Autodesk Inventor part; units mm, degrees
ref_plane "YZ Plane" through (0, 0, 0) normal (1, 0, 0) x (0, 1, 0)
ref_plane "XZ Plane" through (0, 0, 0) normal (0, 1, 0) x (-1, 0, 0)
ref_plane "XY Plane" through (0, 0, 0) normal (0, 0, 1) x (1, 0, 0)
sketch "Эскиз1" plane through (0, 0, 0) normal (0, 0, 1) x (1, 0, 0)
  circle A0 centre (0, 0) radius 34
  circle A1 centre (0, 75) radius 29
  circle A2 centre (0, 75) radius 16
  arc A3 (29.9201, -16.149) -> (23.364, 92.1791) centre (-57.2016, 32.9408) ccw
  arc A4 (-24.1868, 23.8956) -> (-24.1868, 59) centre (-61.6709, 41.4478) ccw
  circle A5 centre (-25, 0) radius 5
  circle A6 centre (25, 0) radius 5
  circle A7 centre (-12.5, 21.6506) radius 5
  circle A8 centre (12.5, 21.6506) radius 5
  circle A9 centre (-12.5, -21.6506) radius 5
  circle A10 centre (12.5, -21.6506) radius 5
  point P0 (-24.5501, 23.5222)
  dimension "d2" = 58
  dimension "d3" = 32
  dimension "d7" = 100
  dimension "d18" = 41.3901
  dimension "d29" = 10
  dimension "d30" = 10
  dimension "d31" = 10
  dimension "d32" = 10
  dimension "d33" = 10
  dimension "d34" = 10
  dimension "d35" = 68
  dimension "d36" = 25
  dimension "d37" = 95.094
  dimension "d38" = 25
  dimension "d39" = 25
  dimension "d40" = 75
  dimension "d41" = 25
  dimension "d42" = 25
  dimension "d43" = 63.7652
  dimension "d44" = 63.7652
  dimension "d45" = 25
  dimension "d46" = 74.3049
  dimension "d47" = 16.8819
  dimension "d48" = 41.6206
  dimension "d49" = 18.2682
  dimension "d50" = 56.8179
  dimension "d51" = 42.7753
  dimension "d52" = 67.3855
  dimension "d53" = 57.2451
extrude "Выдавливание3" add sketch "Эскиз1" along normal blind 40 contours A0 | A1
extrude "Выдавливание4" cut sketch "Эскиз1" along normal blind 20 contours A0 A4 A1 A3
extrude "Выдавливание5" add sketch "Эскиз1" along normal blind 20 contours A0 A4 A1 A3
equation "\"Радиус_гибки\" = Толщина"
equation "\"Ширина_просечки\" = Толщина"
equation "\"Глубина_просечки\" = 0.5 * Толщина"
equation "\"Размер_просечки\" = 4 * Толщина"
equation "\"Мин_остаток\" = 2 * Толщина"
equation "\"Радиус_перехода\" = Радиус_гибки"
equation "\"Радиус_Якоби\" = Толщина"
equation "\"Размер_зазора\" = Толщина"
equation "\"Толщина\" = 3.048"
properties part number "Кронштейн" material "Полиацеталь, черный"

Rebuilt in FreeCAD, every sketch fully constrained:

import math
import FreeCAD as App
import Part
import Sketcher

V = App.Vector

doc = App.newDocument("Part")
body = doc.addObject("PartDesign::Body", "Body")
body.AllowCompound = True

sketch1 = body.newObject("Sketcher::SketchObject", "Sketch")
sketch1.AttachmentSupport = (doc.getObject("XY_Plane"), [""])
sketch1.MapMode = "FlatFace"
sketch1.addGeometry(Part.Circle(V(0, 0, 0), V(0, 0, 1), 34), False)
sketch1.addGeometry(Part.Circle(V(-25, 0, 0), V(0, 0, 1), 5), False)
sketch1.addGeometry(Part.Circle(V(-12.5, -21.6506, 0), V(0, 0, 1), 5), False)
sketch1.addGeometry(Part.Circle(V(-12.5, 21.6506, 0), V(0, 0, 1), 5), False)
sketch1.addGeometry(Part.Circle(V(12.5, -21.6506, 0), V(0, 0, 1), 5), False)
sketch1.addGeometry(Part.Circle(V(25, 0, 0), V(0, 0, 1), 5), False)
sketch1.addGeometry(Part.Circle(V(12.5, 21.6506, 0), V(0, 0, 1), 5), False)
sketch1.addGeometry(Part.Circle(V(0, 75, 0), V(0, 0, 1), 29), False)
sketch1.addGeometry(Part.Circle(V(0, 75, 0), V(0, 0, 1), 16), False)
sketch1.addConstraint(Sketcher.Constraint("Coincident", 0, 3, -1, 1))
sketch1.addConstraint(Sketcher.Constraint("Coincident", 8, 3, 7, 3))
sketch1.addConstraint(Sketcher.Constraint("Equal", 1, 2))
sketch1.addConstraint(Sketcher.Constraint("Equal", 2, 3))
sketch1.addConstraint(Sketcher.Constraint("Equal", 3, 4))
sketch1.addConstraint(Sketcher.Constraint("Equal", 4, 5))
sketch1.addConstraint(Sketcher.Constraint("Equal", 5, 6))
sketch1.addConstraint(Sketcher.Constraint("Symmetric", 3, 3, 4, 3, -1, 1))
sketch1.addConstraint(Sketcher.Constraint("Symmetric", 1, 3, 5, 3, -1, 1))
sketch1.addConstraint(Sketcher.Constraint("Symmetric", 2, 3, 6, 3, -1, 1))
sketch1.addConstraint(Sketcher.Constraint("Symmetric", 2, 3, 4, 3, -2))
sketch1.addConstraint(Sketcher.Constraint("PointOnObject", 1, 3, -1))
sketch1.addConstraint(Sketcher.Constraint("PointOnObject", 7, 3, -2))
sketch1.addConstraint(Sketcher.Constraint("Diameter", 0, 68.0))
sketch1.addConstraint(Sketcher.Constraint("Diameter", 1, 10.0))
sketch1.addConstraint(Sketcher.Constraint("Diameter", 7, 58.0))
sketch1.addConstraint(Sketcher.Constraint("Diameter", 8, 32.0))
sketch1.addConstraint(Sketcher.Constraint("DistanceX", 1, 3, -1, 1, 25.0))
sketch1.addConstraint(Sketcher.Constraint("DistanceY", -1, 1, 7, 3, 75.0))
sketch1.addConstraint(Sketcher.Constraint("DistanceX", 2, 3, 4, 3, 25.0))
sketch1.addConstraint(Sketcher.Constraint("DistanceY", 2, 3, -1, 1, 21.6506))
pad1 = body.newObject("PartDesign::Pad", "Pad")
pad1.Profile = sketch1
pad1.Length = 40

sketch2 = body.newObject("Sketcher::SketchObject", "Sketch001")
sketch2.AttachmentSupport = (doc.getObject("XY_Plane"), [""])
sketch2.MapMode = "FlatFace"
sketch2.addGeometry(Part.ArcOfCircle(Part.Circle(V(0, 0, 0), V(0, 0, 1), 34), math.radians(-28.3574), math.radians(135.346994)), False)
sketch2.addGeometry(Part.ArcOfCircle(Part.Circle(V(-57.2016, 32.9408, 0), V(0, 0, 1), 99.999995), math.radians(-29.399623), math.radians(36.326313)), False)
sketch2.addGeometry(Part.ArcOfCircle(Part.Circle(V(0, 75, 0), V(0, 0, 1), 29), math.radians(-146.514653), math.radians(36.32633)), False)
sketch2.addGeometry(Part.ArcOfCircle(Part.Circle(V(-61.6709, 41.4478, 0), V(0, 0, 1), 41.390065), math.radians(-25.091682), math.radians(25.091682)), False)
sketch2.addConstraint(Sketcher.Constraint("Coincident", 0, 1, 1, 1))
sketch2.addConstraint(Sketcher.Constraint("Tangent", 1, 2, 2, 2))
sketch2.addConstraint(Sketcher.Constraint("Coincident", 2, 1, 3, 2))
sketch2.addConstraint(Sketcher.Constraint("Coincident", 3, 1, 0, 2))
sketch2.addConstraint(Sketcher.Constraint("Coincident", 0, 3, -1, 1))
sketch2.addConstraint(Sketcher.Constraint("PointOnObject", 2, 3, -2))
sketch2.addConstraint(Sketcher.Constraint("Vertical", 2, 1, 3, 1))
sketch2.addConstraint(Sketcher.Constraint("Radius", 0, 34.0))
sketch2.addConstraint(Sketcher.Constraint("Radius", 1, 100.0))
sketch2.addConstraint(Sketcher.Constraint("Radius", 2, 29.0))
sketch2.addConstraint(Sketcher.Constraint("Radius", 3, 41.39))
sketch2.addConstraint(Sketcher.Constraint("DistanceY", -1, 1, 2, 3, 75.0))
sketch2.addConstraint(Sketcher.Constraint("DistanceY", -1, 1, 2, 1, 59.0))
sketch2.addConstraint(Sketcher.Constraint("DistanceX", -1, 1, 0, 1, 29.92))
pocket1 = body.newObject("PartDesign::Pocket", "Pocket")
pocket1.Profile = sketch2
pocket1.Length = 20
pocket1.Reversed = True

sketch3 = body.newObject("Sketcher::SketchObject", "Sketch002")
sketch3.AttachmentSupport = (doc.getObject("XY_Plane"), [""])
sketch3.MapMode = "FlatFace"
sketch3.addGeometry(Part.ArcOfCircle(Part.Circle(V(0, 0, 0), V(0, 0, 1), 34), math.radians(-28.3574), math.radians(135.346994)), False)
sketch3.addGeometry(Part.ArcOfCircle(Part.Circle(V(-57.2016, 32.9408, 0), V(0, 0, 1), 99.999995), math.radians(-29.399623), math.radians(36.326313)), False)
sketch3.addGeometry(Part.ArcOfCircle(Part.Circle(V(0, 75, 0), V(0, 0, 1), 29), math.radians(-146.514653), math.radians(36.32633)), False)
sketch3.addGeometry(Part.ArcOfCircle(Part.Circle(V(-61.6709, 41.4478, 0), V(0, 0, 1), 41.390065), math.radians(-25.091682), math.radians(25.091682)), False)
sketch3.addConstraint(Sketcher.Constraint("Coincident", 0, 1, 1, 1))
sketch3.addConstraint(Sketcher.Constraint("Tangent", 1, 2, 2, 2))
sketch3.addConstraint(Sketcher.Constraint("Coincident", 2, 1, 3, 2))
sketch3.addConstraint(Sketcher.Constraint("Coincident", 3, 1, 0, 2))
sketch3.addConstraint(Sketcher.Constraint("Coincident", 0, 3, -1, 1))
sketch3.addConstraint(Sketcher.Constraint("PointOnObject", 2, 3, -2))
sketch3.addConstraint(Sketcher.Constraint("Vertical", 2, 1, 3, 1))
sketch3.addConstraint(Sketcher.Constraint("Radius", 0, 34.0))
sketch3.addConstraint(Sketcher.Constraint("Radius", 1, 100.0))
sketch3.addConstraint(Sketcher.Constraint("Radius", 2, 29.0))
sketch3.addConstraint(Sketcher.Constraint("Radius", 3, 41.39))
sketch3.addConstraint(Sketcher.Constraint("DistanceY", -1, 1, 2, 3, 75.0))
sketch3.addConstraint(Sketcher.Constraint("DistanceY", -1, 1, 2, 1, 59.0))
sketch3.addConstraint(Sketcher.Constraint("DistanceX", -1, 1, 0, 1, 29.92))
pad2 = body.newObject("PartDesign::Pad", "Pad001")
pad2.Profile = sketch3
pad2.Length = 20

doc.recompute()
